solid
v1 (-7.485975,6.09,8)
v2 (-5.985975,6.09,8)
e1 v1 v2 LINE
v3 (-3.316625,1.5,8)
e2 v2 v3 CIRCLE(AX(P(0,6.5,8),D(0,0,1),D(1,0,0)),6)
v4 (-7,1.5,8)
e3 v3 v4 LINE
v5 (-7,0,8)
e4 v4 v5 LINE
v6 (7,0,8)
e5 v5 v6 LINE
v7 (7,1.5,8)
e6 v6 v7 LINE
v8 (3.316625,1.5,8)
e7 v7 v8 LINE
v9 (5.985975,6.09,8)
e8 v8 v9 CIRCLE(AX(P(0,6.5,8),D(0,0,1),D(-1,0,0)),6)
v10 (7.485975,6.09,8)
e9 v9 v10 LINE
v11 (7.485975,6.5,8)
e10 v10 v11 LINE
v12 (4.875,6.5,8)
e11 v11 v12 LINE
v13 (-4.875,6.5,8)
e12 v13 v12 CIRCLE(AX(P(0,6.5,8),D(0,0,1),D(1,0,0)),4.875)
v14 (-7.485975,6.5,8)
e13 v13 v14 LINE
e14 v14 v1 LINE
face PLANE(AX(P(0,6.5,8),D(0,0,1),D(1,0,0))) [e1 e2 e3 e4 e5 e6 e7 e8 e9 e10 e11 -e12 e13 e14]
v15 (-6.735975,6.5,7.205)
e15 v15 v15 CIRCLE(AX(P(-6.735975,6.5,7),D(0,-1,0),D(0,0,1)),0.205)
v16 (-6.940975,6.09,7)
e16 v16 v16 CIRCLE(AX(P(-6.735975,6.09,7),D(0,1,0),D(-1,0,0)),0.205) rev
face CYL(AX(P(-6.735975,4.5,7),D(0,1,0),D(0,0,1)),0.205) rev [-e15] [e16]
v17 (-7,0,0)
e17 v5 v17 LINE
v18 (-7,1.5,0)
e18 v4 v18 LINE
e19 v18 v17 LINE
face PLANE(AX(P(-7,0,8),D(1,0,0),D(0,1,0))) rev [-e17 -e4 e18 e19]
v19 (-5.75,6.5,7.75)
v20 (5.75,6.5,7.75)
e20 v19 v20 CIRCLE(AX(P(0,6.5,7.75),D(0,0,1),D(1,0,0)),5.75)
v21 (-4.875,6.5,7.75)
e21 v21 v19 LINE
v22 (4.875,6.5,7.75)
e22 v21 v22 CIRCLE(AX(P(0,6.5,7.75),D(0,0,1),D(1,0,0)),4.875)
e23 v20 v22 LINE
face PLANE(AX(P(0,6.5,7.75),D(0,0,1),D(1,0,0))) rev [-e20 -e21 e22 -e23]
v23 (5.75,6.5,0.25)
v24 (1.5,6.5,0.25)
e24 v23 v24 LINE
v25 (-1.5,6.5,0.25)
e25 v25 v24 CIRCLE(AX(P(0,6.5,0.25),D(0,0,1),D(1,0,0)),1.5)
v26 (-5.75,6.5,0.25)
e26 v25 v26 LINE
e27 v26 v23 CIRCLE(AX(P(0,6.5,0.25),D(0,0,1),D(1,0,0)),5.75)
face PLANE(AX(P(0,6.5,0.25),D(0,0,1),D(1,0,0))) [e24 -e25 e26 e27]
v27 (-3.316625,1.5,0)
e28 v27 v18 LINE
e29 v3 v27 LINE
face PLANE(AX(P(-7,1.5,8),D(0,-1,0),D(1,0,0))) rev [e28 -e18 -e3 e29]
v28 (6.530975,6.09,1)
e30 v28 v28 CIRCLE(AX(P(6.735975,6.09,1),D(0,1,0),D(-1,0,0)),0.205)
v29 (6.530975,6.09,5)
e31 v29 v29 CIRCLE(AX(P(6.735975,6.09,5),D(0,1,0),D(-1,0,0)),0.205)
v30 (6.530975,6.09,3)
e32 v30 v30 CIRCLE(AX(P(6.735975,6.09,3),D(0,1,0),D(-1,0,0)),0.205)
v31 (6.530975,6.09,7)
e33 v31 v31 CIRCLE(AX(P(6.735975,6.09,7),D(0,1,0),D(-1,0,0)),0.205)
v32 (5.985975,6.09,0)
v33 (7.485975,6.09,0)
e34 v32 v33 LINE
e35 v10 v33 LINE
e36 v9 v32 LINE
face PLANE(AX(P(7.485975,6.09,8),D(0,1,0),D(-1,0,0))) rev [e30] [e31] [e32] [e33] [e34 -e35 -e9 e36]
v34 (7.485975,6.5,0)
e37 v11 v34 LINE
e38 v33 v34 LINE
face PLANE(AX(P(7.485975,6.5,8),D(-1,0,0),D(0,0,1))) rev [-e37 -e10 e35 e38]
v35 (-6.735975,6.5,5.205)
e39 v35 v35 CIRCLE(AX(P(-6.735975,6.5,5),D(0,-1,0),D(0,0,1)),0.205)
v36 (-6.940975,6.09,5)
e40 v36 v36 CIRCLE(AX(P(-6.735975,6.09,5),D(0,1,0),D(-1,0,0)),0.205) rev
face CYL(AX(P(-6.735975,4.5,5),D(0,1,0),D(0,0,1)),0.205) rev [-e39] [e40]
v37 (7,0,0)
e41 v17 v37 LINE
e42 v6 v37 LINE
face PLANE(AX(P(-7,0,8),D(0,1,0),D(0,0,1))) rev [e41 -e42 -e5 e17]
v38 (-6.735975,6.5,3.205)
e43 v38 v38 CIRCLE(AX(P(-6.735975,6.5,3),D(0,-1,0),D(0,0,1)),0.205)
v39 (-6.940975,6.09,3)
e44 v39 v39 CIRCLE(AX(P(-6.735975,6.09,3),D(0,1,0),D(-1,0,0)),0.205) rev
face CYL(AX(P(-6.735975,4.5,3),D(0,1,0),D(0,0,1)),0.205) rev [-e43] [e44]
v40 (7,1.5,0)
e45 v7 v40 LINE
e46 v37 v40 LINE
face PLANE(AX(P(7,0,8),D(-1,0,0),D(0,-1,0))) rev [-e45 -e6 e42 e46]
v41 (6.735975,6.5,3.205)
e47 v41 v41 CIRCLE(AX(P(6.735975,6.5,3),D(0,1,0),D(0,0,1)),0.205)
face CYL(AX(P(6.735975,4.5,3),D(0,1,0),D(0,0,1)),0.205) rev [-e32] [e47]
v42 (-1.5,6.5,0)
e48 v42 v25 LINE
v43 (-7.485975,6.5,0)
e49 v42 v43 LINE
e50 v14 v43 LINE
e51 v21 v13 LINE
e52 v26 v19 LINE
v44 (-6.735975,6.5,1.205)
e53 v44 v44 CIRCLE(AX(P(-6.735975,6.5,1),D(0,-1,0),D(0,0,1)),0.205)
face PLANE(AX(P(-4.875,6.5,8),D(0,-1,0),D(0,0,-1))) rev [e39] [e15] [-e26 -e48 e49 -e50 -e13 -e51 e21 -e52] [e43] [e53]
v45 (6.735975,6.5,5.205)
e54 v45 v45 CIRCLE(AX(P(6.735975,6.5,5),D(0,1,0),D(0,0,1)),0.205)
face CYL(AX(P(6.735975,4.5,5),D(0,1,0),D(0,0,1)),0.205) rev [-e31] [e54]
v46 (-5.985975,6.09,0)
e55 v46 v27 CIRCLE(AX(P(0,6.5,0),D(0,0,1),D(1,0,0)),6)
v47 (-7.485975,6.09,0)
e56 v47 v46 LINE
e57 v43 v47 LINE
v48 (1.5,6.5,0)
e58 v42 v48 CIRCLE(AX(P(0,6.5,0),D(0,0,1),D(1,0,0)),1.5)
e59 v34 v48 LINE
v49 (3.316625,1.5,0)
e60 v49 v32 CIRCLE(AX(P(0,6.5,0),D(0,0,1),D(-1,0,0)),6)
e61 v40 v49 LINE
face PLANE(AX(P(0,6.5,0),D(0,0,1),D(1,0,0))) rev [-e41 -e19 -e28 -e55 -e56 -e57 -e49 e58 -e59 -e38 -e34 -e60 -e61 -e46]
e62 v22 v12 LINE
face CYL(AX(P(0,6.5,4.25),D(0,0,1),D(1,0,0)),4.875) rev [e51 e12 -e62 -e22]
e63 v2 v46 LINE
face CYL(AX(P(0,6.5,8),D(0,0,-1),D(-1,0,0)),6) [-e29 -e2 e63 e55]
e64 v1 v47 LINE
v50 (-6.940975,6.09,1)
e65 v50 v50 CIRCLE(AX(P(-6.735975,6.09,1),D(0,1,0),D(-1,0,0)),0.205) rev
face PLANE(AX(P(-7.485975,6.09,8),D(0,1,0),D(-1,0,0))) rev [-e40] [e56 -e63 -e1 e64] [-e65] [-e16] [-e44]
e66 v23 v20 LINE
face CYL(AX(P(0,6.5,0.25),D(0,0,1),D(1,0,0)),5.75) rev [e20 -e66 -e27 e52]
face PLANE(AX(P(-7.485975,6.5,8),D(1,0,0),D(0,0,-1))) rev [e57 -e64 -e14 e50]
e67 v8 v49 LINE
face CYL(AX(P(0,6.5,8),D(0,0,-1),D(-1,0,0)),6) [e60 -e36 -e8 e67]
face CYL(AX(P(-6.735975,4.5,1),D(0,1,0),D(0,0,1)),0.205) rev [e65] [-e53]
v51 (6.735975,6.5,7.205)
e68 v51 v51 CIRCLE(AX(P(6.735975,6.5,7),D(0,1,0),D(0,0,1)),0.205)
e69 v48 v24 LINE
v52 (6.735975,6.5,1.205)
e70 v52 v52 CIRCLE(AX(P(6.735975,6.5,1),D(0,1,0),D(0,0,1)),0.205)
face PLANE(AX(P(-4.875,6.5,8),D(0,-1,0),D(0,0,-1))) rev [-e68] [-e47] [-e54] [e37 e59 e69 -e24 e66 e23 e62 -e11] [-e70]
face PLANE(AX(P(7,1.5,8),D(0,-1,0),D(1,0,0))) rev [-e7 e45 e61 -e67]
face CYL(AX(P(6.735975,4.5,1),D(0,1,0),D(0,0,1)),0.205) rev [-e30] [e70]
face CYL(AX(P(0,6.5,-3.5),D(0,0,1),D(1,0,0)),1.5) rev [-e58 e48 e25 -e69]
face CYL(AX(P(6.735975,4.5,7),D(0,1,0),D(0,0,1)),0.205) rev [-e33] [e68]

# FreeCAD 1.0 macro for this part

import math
import FreeCAD as App
import Part
import Sketcher
Q = App.Units.Quantity

doc = App.newDocument("Part")
params = doc.addObject("Spreadsheet::Sheet", "Params")
for row, (alias, value) in enumerate([
    ("sketch1_radius", "6 mm"),
    ("sketch1_width", "14 mm"),
    ("sketch1_width2", "1.5 mm"),
    ("sketch1_height", "0.41 mm"),
    ("pad1_length", "8 mm"),
    ("sketch2_radius", "5.75 mm"),
    ("pocket1_length", "7.5 mm"),
    ("pocket2_length", "7.5 mm"),
    ("sketch4_radius", "1.5 mm"),
    ("pocket3_length", "7.5 mm"),
    ("sketch5_diameter", "0.41 mm"),
    ("pocket4_length", "2 mm"),
], start=1):
    params.set(f"A{row}", alias)
    params.set(f"B{row}", "=" + value)
    params.setAlias(f"B{row}", alias)

body = doc.addObject("PartDesign::Body", "Body")

# Sketch on XY plane
sketch1 = doc.addObject("Sketcher::SketchObject", "Sketch")
body.addObject(sketch1)
sketch1.AttachmentSupport = (doc.XY_Plane, [""])
sketch1.MapMode = "FlatFace"
sketch1.addGeometry([
    Part.LineSegment(App.Vector(-7, 0, 0), App.Vector(7, 0, 0)),  # 0
    Part.LineSegment(App.Vector(7, 0, 0), App.Vector(7, 1.5, 0)),  # 1
    Part.LineSegment(App.Vector(7, 1.5, 0), App.Vector(3.32, 1.5, 0)),  # 2
    Part.ArcOfCircle(Part.Circle(App.Vector(0, 6.5, 0), App.Vector(0, 0, 1), 6), math.radians(-56), math.radians(-4)),  # 3
    Part.LineSegment(App.Vector(5.99, 6.09, 0), App.Vector(7.49, 6.09, 0)),  # 4
    Part.LineSegment(App.Vector(7.49, 6.09, 0), App.Vector(7.49, 6.5, 0)),  # 5
    Part.LineSegment(App.Vector(7.49, 6.5, 0), App.Vector(-7.49, 6.5, 0)),  # 6
    Part.LineSegment(App.Vector(-7.49, 6.5, 0), App.Vector(-7.49, 6.09, 0)),  # 7
    Part.LineSegment(App.Vector(-7.49, 6.09, 0), App.Vector(-5.99, 6.09, 0)),  # 8
    Part.ArcOfCircle(Part.Circle(App.Vector(0, 6.5, 0), App.Vector(0, 0, 1), 6), math.radians(-176), math.radians(-124)),  # 9
    Part.LineSegment(App.Vector(-3.32, 1.5, 0), App.Vector(-7, 1.5, 0)),  # 10
    Part.LineSegment(App.Vector(-7, 1.5, 0), App.Vector(-7, 0, 0)),  # 11
], False)
sketch1.addConstraint([
    Sketcher.Constraint("Coincident", 0, 2, 1, 1),
    Sketcher.Constraint("Coincident", 1, 2, 2, 1),
    Sketcher.Constraint("Coincident", 2, 2, 3, 1),
    Sketcher.Constraint("Coincident", 3, 2, 4, 1),
    Sketcher.Constraint("Coincident", 4, 2, 5, 1),
    Sketcher.Constraint("Coincident", 5, 2, 6, 1),
    Sketcher.Constraint("Coincident", 6, 2, 7, 1),
    Sketcher.Constraint("Coincident", 7, 2, 8, 1),
    Sketcher.Constraint("Coincident", 8, 2, 9, 1),
    Sketcher.Constraint("Coincident", 9, 2, 10, 1),
    Sketcher.Constraint("Coincident", 10, 2, 11, 1),
    Sketcher.Constraint("Coincident", 11, 2, 0, 1),
    Sketcher.Constraint("Horizontal", 0),
    Sketcher.Constraint("Vertical", 1),
    Sketcher.Constraint("Horizontal", 2),
    Sketcher.Constraint("Horizontal", 4),
    Sketcher.Constraint("Vertical", 5),
    Sketcher.Constraint("Horizontal", 6),
    Sketcher.Constraint("Vertical", 7),
    Sketcher.Constraint("Horizontal", 8),
    Sketcher.Constraint("Horizontal", 10),
    Sketcher.Constraint("Vertical", 11),
    Sketcher.Constraint("Coincident", 9, 3, 3, 3),
    Sketcher.Constraint("Equal", 3, 9),
    Sketcher.Constraint("Symmetric", 0, 2, 11, 2, -1, 1),
    Sketcher.Constraint("Symmetric", 4, 2, 7, 2, -2),
    Sketcher.Constraint("Symmetric", 2, 2, 9, 2, -2),
    Sketcher.Constraint("Horizontal", 9, 3, 5, 2),
    Sketcher.Constraint("Equal", 8, 1),
    Sketcher.Constraint("Radius", 3, Q("6 mm")),
    Sketcher.Constraint("DistanceX", 0, 1, 0, 2, Q("14 mm")),
    Sketcher.Constraint("DistanceX", 4, 1, 4, 2, Q("1.5 mm")),
    Sketcher.Constraint("DistanceY", 1, 2, 9, 3, Q("5 mm")),
    Sketcher.Constraint("DistanceY", 5, 1, 5, 2, Q("0.41 mm")),
])
sketch1.setExpression("Constraints[29]", "Params.sketch1_radius")
sketch1.setExpression("Constraints[30]", "Params.sketch1_width")
sketch1.setExpression("Constraints[31]", "Params.sketch1_width2")
sketch1.setExpression("Constraints[33]", "Params.sketch1_height")
pad1 = doc.addObject("PartDesign::Pad", "Pad")
body.addObject(pad1)
pad1.Profile = sketch1
pad1.setExpression("Length", "Params.pad1_length")

# Sketch on XY plane
sketch2 = doc.addObject("Sketcher::SketchObject", "Sketch001")
body.addObject(sketch2)
sketch2.AttachmentSupport = (doc.XY_Plane, [""])
sketch2.MapMode = "FlatFace"
sketch2.AttachmentOffset = App.Placement(App.Vector(0, 0, 4), App.Rotation())
sketch2.addGeometry([
    Part.LineSegment(App.Vector(6, 6, 0), App.Vector(-6, 6, 0)),
    Part.ArcOfCircle(Part.Circle(App.Vector(0, 6, 0), App.Vector(0, 0, 1), 6), math.radians(180), math.radians(360)),
], False)
sketch2.addConstraint([
    Sketcher.Constraint("Coincident", 0, 1, 1, 2),
    Sketcher.Constraint("Coincident", 1, 1, 0, 2),
    Sketcher.Constraint("Horizontal", 0),
    Sketcher.Constraint("PointOnObject", 1, 3, -2),
    Sketcher.Constraint("Horizontal", 1, 3, 0, 1),
    Sketcher.Constraint("Radius", 1, Q("5.75 mm")),
    Sketcher.Constraint("DistanceY", -1, 1, 1, 3, Q("6.5 mm")),
])
sketch2.setExpression("Constraints[5]", "Params.sketch2_radius")
pocket1 = doc.addObject("PartDesign::Pocket", "Pocket")
body.addObject(pocket1)
pocket1.Profile = sketch2
pocket1.setExpression("Length", "Params.pocket1_length")
pocket1.Midplane = True

# Sketch on XY plane
sketch3 = doc.addObject("Sketcher::SketchObject", "Sketch002")
body.addObject(sketch3)
sketch3.AttachmentSupport = (doc.XY_Plane, [""])
sketch3.MapMode = "FlatFace"
sketch3.AttachmentOffset = App.Placement(App.Vector(0, 0, 8), App.Rotation())
sketch3.addGeometry([
    Part.LineSegment(App.Vector(4.9, 6.5, 0), App.Vector(-4.9, 6.5, 0)),
    Part.ArcOfCircle(Part.Circle(App.Vector(0, 6.5, 0), App.Vector(0, 0, 1), 4.9), math.radians(180), math.radians(360)),
], False)
sketch3.addConstraint([
    Sketcher.Constraint("Coincident", 0, 1, 1, 2),
    Sketcher.Constraint("Coincident", 1, 1, 0, 2),
    Sketcher.Constraint("Horizontal", 0),
    Sketcher.Constraint("PointOnObject", 1, 3, -2),
    Sketcher.Constraint("Horizontal", 1, 3, 0, 1),
    Sketcher.Constraint("Radius", 1, Q("4.875 mm")),
    Sketcher.Constraint("DistanceY", -1, 1, 1, 3, Q("6.5 mm")),
])
pocket2 = doc.addObject("PartDesign::Pocket", "Pocket001")
body.addObject(pocket2)
pocket2.Profile = sketch3
pocket2.setExpression("Length", "Params.pocket2_length")
pocket2.Midplane = True

# Sketch on XY plane
sketch4 = doc.addObject("Sketcher::SketchObject", "Sketch003")
body.addObject(sketch4)
sketch4.AttachmentSupport = (doc.XY_Plane, [""])
sketch4.MapMode = "FlatFace"
sketch4.AttachmentOffset = App.Placement(App.Vector(0, 0, 0.25), App.Rotation())
sketch4.addGeometry([
    Part.LineSegment(App.Vector(1.5, 6.5, 0), App.Vector(-1.5, 6.5, 0)),
    Part.ArcOfCircle(Part.Circle(App.Vector(0, 6.5, 0), App.Vector(0, 0, 1), 1.5), math.radians(180), math.radians(360)),
], False)
sketch4.addConstraint([
    Sketcher.Constraint("Coincident", 0, 1, 1, 2),
    Sketcher.Constraint("Coincident", 1, 1, 0, 2),
    Sketcher.Constraint("Horizontal", 0),
    Sketcher.Constraint("PointOnObject", 1, 3, -2),
    Sketcher.Constraint("Horizontal", 1, 3, 0, 1),
    Sketcher.Constraint("Radius", 1, Q("1.5 mm")),
    Sketcher.Constraint("DistanceY", -1, 1, 1, 3, Q("6.5 mm")),
])
sketch4.setExpression("Constraints[5]", "Params.sketch4_radius")
pocket3 = doc.addObject("PartDesign::Pocket", "Pocket002")
body.addObject(pocket3)
pocket3.Profile = sketch4
pocket3.setExpression("Length", "Params.pocket3_length")
pocket3.Midplane = True

# Sketch on XZ plane
sketch5 = doc.addObject("Sketcher::SketchObject", "Sketch004")
body.addObject(sketch5)
sketch5.AttachmentSupport = (doc.XZ_Plane, [""])
sketch5.MapMode = "FlatFace"
sketch5.AttachmentOffset = App.Placement(App.Vector(0, 0, -6.5), App.Rotation())
sketch5.addGeometry([
    Part.Circle(App.Vector(6.74, 7, 0), App.Vector(0, 0, 1), 0.2),
    Part.Circle(App.Vector(6.74, 5, 0), App.Vector(0, 0, 1), 0.2),
    Part.Circle(App.Vector(6.74, 3, 0), App.Vector(0, 0, 1), 0.2),
    Part.Circle(App.Vector(6.74, 1, 0), App.Vector(0, 0, 1), 0.2),
], False)
sketch5.addConstraint([
    Sketcher.Constraint("Equal", 0, 1),
    Sketcher.Constraint("Equal", 1, 2),
    Sketcher.Constraint("Equal", 2, 3),
    Sketcher.Constraint("Vertical", 0, 3, 1, 3),
    Sketcher.Constraint("Vertical", 1, 3, 2, 3),
    Sketcher.Constraint("Vertical", 2, 3, 3, 3),
    Sketcher.Constraint("Diameter", 0, Q("0.41 mm")),
    Sketcher.Constraint("DistanceY", -1, 1, 0, 3, Q("7 mm")),
    Sketcher.Constraint("DistanceY", -1, 1, 1, 3, Q("5 mm")),
    Sketcher.Constraint("DistanceY", -1, 1, 2, 3, Q("3 mm")),
    Sketcher.Constraint("DistanceY", -1, 1, 3, 3, Q("1 mm")),
    Sketcher.Constraint("DistanceX", -1, 1, 0, 3, Q("6.735975 mm")),
])
sketch5.setExpression("Constraints[6]", "Params.sketch5_diameter")
pocket4 = doc.addObject("PartDesign::Pocket", "Pocket003")
body.addObject(pocket4)
pocket4.Profile = sketch5
pocket4.setExpression("Length", "Params.pocket4_length")
pocket4.Reversed = True
doc.recompute()

mirrored = doc.addObject("PartDesign::Mirrored", "Mirrored")
body.addObject(mirrored)
mirrored.Originals = [pocket4]
mirrored.MirrorPlane = (doc.YZ_Plane, [""])
body.Tip = mirrored

doc.recompute()
